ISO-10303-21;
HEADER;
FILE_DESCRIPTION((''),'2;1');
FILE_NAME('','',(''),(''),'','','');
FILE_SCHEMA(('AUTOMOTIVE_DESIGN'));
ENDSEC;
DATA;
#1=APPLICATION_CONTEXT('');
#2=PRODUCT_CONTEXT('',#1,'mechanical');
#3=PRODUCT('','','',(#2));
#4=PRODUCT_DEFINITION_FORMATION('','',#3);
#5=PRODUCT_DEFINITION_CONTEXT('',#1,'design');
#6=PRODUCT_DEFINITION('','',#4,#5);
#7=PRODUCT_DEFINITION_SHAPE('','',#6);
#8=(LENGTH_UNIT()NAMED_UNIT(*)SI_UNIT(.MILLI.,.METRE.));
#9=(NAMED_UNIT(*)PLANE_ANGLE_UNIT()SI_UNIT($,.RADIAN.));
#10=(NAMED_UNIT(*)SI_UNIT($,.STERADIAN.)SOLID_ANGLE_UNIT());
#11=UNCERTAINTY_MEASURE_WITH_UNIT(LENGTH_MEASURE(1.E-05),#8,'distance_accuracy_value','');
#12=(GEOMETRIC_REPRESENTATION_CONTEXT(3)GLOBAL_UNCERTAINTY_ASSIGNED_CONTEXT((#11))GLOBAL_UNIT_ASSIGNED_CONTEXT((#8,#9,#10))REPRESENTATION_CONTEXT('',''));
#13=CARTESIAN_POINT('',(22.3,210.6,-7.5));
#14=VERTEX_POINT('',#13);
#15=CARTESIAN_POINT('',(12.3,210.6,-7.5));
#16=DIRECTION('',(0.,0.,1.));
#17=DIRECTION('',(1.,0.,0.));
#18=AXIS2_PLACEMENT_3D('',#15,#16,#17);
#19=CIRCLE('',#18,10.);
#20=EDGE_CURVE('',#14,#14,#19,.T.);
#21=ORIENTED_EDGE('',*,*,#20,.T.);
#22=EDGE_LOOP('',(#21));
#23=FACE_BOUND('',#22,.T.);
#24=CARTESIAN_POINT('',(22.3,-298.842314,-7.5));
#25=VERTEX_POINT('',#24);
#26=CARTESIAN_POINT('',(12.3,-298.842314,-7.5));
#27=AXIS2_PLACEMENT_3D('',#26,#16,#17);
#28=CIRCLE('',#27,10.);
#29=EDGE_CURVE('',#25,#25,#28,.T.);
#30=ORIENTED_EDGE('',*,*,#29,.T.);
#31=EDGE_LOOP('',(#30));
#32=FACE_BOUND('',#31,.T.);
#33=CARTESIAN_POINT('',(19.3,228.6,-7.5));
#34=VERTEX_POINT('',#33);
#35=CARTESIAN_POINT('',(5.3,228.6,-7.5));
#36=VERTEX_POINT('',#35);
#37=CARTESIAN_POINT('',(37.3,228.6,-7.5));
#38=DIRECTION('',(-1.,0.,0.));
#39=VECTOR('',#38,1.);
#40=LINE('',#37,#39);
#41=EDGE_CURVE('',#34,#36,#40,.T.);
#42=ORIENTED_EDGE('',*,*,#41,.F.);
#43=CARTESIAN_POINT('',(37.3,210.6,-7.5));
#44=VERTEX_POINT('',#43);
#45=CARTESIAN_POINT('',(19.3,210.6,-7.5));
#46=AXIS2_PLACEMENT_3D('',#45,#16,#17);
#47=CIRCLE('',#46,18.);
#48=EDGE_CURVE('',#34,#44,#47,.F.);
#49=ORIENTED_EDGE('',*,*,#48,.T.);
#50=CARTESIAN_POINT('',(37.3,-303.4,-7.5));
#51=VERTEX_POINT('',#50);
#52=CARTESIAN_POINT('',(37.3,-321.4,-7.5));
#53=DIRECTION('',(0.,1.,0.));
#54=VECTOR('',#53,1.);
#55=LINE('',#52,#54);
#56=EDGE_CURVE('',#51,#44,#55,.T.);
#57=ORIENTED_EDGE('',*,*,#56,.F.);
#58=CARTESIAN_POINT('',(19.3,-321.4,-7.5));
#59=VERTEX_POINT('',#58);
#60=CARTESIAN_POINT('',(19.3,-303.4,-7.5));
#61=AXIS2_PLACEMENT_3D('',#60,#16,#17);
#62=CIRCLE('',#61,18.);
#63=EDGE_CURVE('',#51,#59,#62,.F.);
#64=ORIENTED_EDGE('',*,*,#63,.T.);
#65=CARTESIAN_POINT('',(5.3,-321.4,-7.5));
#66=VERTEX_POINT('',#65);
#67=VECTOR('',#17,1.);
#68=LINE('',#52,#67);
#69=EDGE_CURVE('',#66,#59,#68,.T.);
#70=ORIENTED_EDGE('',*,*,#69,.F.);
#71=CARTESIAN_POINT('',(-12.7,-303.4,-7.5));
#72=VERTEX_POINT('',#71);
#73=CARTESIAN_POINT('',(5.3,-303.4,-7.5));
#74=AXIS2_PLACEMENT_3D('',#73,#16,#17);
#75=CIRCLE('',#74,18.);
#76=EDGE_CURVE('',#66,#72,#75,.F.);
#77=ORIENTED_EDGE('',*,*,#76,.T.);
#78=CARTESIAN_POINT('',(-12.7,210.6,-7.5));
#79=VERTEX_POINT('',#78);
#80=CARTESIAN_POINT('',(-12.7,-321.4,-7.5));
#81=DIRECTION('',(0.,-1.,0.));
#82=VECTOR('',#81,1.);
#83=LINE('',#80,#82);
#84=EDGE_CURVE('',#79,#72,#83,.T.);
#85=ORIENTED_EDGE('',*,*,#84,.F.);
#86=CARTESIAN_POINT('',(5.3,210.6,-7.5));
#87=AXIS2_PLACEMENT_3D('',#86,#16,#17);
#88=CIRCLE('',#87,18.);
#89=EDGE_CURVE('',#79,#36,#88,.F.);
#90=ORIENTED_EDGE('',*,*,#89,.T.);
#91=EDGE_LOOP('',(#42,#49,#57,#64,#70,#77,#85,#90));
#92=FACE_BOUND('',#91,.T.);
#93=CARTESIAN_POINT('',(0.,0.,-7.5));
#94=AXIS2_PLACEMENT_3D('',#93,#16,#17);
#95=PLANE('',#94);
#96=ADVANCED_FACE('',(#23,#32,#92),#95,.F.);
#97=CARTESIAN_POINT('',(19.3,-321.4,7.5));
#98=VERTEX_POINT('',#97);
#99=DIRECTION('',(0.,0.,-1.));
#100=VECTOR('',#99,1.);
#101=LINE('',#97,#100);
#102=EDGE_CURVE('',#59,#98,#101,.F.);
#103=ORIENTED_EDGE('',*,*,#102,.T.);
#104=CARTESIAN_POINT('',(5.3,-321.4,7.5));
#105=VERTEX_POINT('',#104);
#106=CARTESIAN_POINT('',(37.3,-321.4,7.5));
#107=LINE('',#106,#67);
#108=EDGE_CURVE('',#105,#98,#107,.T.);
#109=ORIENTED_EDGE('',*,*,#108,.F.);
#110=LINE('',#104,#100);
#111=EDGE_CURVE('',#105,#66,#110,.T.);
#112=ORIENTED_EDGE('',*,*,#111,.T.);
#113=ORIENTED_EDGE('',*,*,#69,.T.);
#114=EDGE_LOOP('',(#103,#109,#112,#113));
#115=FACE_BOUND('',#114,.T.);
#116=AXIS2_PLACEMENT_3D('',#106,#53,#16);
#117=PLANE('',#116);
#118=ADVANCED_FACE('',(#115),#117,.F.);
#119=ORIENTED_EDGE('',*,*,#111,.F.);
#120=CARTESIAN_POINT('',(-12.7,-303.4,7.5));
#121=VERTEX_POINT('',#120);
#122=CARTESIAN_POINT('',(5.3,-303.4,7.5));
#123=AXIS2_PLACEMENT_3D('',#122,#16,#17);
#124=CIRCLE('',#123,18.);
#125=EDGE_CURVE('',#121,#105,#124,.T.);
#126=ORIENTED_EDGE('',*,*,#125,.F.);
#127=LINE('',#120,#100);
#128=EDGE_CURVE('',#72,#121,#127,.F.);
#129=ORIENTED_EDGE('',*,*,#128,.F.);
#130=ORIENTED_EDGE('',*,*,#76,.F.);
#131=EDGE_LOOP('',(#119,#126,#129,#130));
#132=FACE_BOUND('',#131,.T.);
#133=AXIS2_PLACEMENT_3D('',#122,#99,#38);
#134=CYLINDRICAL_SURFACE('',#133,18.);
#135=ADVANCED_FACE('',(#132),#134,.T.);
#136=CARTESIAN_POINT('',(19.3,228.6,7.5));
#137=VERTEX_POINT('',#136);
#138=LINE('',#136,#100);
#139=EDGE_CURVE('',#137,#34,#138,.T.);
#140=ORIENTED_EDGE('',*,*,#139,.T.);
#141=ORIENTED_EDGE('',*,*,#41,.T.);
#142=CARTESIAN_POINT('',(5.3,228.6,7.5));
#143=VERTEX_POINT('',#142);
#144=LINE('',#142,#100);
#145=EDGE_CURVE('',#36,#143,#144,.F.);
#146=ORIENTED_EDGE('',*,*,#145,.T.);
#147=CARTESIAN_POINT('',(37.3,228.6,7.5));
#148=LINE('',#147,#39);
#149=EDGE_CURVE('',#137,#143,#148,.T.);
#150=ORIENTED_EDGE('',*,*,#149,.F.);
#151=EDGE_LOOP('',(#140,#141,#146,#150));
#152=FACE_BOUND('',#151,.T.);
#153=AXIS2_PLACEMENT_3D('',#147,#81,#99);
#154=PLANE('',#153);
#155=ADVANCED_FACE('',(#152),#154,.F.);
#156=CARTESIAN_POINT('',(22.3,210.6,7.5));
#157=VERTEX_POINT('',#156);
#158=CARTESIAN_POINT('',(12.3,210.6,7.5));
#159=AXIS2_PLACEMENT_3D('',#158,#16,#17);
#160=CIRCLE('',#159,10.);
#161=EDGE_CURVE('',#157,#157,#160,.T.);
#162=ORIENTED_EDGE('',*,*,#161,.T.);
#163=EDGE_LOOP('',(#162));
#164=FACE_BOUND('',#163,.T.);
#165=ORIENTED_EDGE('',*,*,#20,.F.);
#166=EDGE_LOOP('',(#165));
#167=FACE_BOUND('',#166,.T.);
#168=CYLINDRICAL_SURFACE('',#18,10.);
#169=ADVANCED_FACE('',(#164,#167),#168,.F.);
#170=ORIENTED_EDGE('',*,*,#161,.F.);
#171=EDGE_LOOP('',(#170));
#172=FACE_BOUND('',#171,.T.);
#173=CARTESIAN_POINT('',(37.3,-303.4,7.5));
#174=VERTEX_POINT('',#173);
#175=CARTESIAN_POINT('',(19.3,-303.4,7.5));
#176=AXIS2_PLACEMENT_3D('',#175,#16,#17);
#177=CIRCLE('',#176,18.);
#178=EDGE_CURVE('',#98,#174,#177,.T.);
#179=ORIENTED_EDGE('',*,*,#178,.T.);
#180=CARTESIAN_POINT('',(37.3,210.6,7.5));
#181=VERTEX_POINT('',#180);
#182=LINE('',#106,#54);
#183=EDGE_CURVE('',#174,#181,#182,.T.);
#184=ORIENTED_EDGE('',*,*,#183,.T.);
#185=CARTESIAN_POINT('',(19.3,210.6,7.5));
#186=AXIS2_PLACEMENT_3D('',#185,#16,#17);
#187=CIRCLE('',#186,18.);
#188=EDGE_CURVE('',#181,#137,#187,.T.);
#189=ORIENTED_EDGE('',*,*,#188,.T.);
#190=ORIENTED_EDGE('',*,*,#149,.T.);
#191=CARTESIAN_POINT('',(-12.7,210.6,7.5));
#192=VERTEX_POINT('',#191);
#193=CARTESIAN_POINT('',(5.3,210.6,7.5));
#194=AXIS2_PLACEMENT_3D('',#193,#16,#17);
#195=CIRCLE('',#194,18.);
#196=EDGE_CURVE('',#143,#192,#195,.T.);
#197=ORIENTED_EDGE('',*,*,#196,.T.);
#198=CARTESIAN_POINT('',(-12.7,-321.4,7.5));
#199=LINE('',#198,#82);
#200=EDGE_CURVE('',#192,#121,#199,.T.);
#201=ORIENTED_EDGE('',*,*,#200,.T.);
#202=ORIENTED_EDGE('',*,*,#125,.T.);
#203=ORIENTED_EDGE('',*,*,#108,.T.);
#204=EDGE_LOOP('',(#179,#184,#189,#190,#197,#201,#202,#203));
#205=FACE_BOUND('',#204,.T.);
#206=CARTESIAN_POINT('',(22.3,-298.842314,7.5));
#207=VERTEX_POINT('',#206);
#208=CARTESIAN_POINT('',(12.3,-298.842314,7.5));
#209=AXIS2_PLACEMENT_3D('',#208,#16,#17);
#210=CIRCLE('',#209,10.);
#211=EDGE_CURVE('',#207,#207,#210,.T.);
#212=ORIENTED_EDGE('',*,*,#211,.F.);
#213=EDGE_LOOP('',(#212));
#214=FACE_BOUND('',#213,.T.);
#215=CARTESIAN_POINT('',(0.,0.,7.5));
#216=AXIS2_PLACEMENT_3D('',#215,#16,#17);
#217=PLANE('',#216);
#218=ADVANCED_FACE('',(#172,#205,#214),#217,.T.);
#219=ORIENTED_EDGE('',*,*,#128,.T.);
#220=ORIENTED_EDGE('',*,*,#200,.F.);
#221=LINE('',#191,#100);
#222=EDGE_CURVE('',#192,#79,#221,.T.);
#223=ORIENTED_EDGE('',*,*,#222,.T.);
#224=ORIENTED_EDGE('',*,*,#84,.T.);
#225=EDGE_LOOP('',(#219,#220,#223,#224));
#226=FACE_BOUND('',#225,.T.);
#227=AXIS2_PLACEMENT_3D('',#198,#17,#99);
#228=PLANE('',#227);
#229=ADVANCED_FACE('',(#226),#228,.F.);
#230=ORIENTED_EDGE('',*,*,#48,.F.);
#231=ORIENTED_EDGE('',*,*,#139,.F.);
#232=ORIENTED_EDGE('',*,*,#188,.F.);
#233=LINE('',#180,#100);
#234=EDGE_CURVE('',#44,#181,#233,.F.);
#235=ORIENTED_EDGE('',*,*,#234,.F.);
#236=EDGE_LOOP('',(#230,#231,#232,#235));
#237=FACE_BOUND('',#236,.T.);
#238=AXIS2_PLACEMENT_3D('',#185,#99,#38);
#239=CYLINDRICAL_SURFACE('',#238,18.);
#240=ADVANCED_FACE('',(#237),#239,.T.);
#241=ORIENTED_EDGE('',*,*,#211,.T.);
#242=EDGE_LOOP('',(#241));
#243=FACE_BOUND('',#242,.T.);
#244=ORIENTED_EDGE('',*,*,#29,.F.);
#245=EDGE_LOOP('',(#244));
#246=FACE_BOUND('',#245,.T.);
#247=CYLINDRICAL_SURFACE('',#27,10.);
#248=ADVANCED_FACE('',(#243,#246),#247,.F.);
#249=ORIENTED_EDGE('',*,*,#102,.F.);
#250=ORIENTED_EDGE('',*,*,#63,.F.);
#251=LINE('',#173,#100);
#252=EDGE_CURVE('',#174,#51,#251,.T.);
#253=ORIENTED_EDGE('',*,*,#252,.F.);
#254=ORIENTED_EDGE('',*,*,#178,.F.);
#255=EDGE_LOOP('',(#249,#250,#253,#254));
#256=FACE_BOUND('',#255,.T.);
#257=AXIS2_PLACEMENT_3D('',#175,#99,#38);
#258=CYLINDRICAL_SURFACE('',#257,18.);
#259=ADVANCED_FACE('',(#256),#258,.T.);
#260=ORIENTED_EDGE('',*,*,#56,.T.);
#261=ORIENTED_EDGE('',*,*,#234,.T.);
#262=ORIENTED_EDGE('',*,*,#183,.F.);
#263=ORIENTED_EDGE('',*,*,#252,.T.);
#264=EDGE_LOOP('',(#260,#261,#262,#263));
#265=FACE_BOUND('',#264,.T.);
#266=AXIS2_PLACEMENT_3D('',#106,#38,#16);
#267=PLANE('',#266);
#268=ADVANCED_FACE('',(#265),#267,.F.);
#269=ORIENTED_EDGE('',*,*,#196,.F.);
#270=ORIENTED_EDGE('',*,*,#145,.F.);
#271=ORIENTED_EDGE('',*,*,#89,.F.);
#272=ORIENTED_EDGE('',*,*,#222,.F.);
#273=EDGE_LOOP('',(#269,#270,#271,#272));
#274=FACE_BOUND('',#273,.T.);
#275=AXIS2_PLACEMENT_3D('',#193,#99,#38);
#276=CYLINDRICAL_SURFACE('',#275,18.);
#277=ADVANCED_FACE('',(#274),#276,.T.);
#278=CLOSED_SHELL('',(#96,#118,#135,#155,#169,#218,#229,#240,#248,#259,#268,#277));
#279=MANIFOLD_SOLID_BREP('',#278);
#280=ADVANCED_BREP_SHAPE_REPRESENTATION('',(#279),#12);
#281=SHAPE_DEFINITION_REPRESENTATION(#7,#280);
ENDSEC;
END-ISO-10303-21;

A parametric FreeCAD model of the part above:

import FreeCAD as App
import Part
import Sketcher
from FreeCAD import Vector


def edges_at(feature, points):
    """Names of the edges that pass closest to the given points."""
    edges = feature.Shape.Edges
    near = lambda p: min(range(len(edges)), key=lambda i: edges[i].distToShape(Part.Vertex(*p))[0])
    return sorted({f"Edge{near(p) + 1}" for p in points})

doc = App.newDocument("Part")
body = doc.addObject("PartDesign::Body", "Body")

# Sketch on XY plane
sketch1 = body.newObject("Sketcher::SketchObject", "Sketch")
sketch1.AttachmentSupport = (doc.getObject("XY_Plane"), [""])
sketch1.MapMode = "FlatFace"
sketch1.addGeometry(Part.LineSegment(Vector(-12.7, 228.6, 0), Vector(-12.7, -321.4, 0)), False)
sketch1.addGeometry(Part.LineSegment(Vector(-12.7, -321.4, 0), Vector(37.3, -321.4, 0)), False)
sketch1.addGeometry(Part.LineSegment(Vector(37.3, -321.4, 0), Vector(37.3, 228.6, 0)), False)
sketch1.addGeometry(Part.LineSegment(Vector(37.3, 228.6, 0), Vector(-12.7, 228.6, 0)), False)
sketch1.addConstraint(Sketcher.Constraint("Coincident", 0, 2, 1, 1))
sketch1.addConstraint(Sketcher.Constraint("Coincident", 1, 2, 2, 1))
sketch1.addConstraint(Sketcher.Constraint("Coincident", 2, 2, 3, 1))
sketch1.addConstraint(Sketcher.Constraint("Coincident", 3, 2, 0, 1))
sketch1.addConstraint(Sketcher.Constraint("Vertical", 0))
sketch1.addConstraint(Sketcher.Constraint("Horizontal", 1))
sketch1.addConstraint(Sketcher.Constraint("Vertical", 2))
sketch1.addConstraint(Sketcher.Constraint("Horizontal", 3))
sketch1.addConstraint(Sketcher.Constraint("DistanceX", 1, 1, 1, 2, 50.0))
sketch1.addConstraint(Sketcher.Constraint("DistanceY", 0, 2, 0, 1, 550.0))
sketch1.addConstraint(Sketcher.Constraint("DistanceX", 0, 2, -1, 1, 12.7))
sketch1.addConstraint(Sketcher.Constraint("DistanceY", 0, 2, -1, 1, 321.4))
pad1 = body.newObject("PartDesign::Pad", "Pad")
pad1.Profile = sketch1
pad1.Length = 15
pad1.Midplane = True
doc.recompute()

fillet = body.newObject("PartDesign::Fillet", "Fillet")
fillet.Base = (pad1, edges_at(pad1, [
    (-12.7, 228.6, 0),
    (37.3, 228.6, 0),
    (37.3, -321.4, 0),
    (-12.7, -321.4, 0),
]))
fillet.Radius = 18

# Sketch on XY plane
sketch2 = body.newObject("Sketcher::SketchObject", "Sketch001")
sketch2.AttachmentSupport = (doc.getObject("XY_Plane"), [""])
sketch2.MapMode = "FlatFace"
sketch2.AttachmentOffset = App.Placement(Vector(0, 0, 7.5), App.Rotation())
sketch2.addGeometry(Part.Circle(Vector(12.3, 210.6, 0), Vector(0, 0, 1), 10), False)
sketch2.addConstraint(Sketcher.Constraint("Diameter", 0, 20.0))
sketch2.addConstraint(Sketcher.Constraint("DistanceX", -1, 1, 0, 3, 12.3))
sketch2.addConstraint(Sketcher.Constraint("DistanceY", -1, 1, 0, 3, 210.6))
pocket1 = body.newObject("PartDesign::Pocket", "Pocket")
pocket1.Profile = sketch2
pocket1.Type = "ThroughAll"

# Sketch on XY plane
sketch3 = body.newObject("Sketcher::SketchObject", "Sketch002")
sketch3.AttachmentSupport = (doc.getObject("XY_Plane"), [""])
sketch3.MapMode = "FlatFace"
sketch3.AttachmentOffset = App.Placement(Vector(0, 0, 7.5), App.Rotation())
sketch3.addGeometry(Part.Circle(Vector(12.3, -298.842314, 0), Vector(0, 0, 1), 10), False)
sketch3.addConstraint(Sketcher.Constraint("Diameter", 0, 20.0))
sketch3.addConstraint(Sketcher.Constraint("DistanceX", -1, 1, 0, 3, 12.3))
sketch3.addConstraint(Sketcher.Constraint("DistanceY", 0, 3, -1, 1, 298.842314))
pocket2 = body.newObject("PartDesign::Pocket", "Pocket001")
pocket2.Profile = sketch3
pocket2.Type = "ThroughAll"

doc.recompute()
